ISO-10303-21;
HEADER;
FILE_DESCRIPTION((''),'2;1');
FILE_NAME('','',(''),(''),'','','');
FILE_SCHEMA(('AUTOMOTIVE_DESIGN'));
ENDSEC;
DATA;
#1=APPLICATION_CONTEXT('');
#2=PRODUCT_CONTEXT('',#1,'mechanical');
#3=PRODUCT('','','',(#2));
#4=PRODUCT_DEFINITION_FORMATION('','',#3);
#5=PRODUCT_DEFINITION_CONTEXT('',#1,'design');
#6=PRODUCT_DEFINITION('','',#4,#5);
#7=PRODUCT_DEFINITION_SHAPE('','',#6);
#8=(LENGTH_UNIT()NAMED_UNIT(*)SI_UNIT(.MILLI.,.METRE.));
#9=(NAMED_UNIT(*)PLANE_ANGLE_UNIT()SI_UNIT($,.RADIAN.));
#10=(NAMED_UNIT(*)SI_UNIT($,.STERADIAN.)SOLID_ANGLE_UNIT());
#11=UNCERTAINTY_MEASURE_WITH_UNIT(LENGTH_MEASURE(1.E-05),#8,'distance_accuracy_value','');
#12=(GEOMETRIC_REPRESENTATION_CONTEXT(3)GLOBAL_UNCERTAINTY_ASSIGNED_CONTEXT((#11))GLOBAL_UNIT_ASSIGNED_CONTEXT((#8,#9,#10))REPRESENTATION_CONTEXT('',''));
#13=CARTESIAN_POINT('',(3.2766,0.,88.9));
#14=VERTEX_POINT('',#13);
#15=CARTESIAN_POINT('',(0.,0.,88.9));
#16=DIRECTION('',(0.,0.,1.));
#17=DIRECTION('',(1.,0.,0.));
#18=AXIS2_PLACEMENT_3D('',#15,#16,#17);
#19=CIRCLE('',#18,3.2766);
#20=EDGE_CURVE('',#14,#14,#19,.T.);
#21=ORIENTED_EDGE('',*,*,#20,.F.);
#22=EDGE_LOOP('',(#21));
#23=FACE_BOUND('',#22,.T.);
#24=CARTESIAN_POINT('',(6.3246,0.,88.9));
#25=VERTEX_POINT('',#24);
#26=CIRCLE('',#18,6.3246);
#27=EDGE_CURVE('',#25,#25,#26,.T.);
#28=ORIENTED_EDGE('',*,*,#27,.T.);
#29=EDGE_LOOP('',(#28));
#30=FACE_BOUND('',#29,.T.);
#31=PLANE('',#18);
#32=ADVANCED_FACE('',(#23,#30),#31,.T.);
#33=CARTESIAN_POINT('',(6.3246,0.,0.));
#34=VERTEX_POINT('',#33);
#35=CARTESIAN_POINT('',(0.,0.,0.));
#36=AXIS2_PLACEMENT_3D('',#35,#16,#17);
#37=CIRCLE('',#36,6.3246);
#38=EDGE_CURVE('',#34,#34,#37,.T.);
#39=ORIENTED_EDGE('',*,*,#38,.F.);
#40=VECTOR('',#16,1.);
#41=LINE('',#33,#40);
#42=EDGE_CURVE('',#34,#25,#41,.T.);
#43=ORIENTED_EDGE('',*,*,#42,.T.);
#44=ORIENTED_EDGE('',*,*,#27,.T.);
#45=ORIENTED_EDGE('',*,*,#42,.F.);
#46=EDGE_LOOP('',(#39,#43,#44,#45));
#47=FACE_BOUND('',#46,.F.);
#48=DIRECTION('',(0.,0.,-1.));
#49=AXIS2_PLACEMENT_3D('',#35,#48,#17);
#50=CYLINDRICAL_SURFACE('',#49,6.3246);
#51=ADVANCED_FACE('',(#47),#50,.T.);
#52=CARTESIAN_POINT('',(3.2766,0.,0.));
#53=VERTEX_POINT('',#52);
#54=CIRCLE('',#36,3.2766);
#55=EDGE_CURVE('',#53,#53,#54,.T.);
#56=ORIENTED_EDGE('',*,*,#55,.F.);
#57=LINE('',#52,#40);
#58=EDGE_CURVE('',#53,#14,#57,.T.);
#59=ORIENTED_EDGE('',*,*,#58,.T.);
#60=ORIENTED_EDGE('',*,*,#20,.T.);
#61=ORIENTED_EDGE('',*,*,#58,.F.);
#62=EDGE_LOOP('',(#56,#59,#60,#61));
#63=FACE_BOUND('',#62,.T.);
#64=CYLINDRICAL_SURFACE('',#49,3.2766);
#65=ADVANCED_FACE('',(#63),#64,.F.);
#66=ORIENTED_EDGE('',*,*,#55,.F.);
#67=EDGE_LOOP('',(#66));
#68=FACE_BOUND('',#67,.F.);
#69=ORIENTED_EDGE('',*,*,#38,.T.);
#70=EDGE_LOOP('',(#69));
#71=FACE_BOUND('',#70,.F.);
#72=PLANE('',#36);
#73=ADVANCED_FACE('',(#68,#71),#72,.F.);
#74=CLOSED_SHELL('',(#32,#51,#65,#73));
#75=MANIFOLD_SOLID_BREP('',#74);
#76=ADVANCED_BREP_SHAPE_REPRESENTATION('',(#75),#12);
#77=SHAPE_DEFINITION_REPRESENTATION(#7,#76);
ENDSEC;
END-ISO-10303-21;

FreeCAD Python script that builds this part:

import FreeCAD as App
import Part
import Sketcher
Q = App.Units.Quantity

doc = App.newDocument("Part")
params = doc.addObject("Spreadsheet::Sheet", "Params")
for row, (alias, value) in enumerate([
    ("sketch1_diameter", "0.498 in"),
    ("sketch1_diameter2", "0.258 in"),
    ("pad1_length", "3.5 in"),
], start=1):
    params.set(f"A{row}", alias)
    params.set(f"B{row}", "=" + value)
    params.setAlias(f"B{row}", alias)

body = doc.addObject("PartDesign::Body", "Body")

# Sketch on XY plane
sketch1 = body.newObject("Sketcher::SketchObject", "Sketch")
sketch1.AttachmentSupport = (doc.getObject("XY_Plane"), [""])
sketch1.MapMode = "FlatFace"
sketch1.addGeometry([
    Part.Circle(App.Vector(0, 0, 0), App.Vector(0, 0, 1), 6.3),
    Part.Circle(App.Vector(0, 0, 0), App.Vector(0, 0, 1), 3.3),
], False)
sketch1.addConstraint([
    Sketcher.Constraint("Coincident", 0, 3, -1, 1),
    Sketcher.Constraint("Coincident", 1, 3, -1, 1),
    Sketcher.Constraint("Diameter", 0, Q("0.498 in")),
    Sketcher.Constraint("Diameter", 1, Q("0.258 in")),
])
sketch1.setExpression("Constraints[2]", "Params.sketch1_diameter")
sketch1.setExpression("Constraints[3]", "Params.sketch1_diameter2")
pad1 = body.newObject("PartDesign::Pad", "Pad")
pad1.Profile = sketch1
pad1.setExpression("Length", "Params.pad1_length")

doc.recompute()
